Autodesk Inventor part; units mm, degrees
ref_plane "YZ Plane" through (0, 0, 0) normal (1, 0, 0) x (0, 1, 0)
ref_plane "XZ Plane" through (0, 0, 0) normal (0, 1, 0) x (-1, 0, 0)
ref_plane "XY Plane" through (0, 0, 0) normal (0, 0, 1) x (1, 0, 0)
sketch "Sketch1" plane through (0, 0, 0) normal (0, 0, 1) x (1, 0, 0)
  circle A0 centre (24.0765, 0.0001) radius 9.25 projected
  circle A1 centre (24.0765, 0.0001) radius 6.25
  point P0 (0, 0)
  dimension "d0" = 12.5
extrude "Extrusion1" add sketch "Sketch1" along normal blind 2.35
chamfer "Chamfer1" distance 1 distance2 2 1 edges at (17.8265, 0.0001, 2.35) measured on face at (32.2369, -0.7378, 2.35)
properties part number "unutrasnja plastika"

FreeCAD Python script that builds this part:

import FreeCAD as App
import Part
import Sketcher

V = App.Vector
Q = App.Units.Quantity


def edges_at(feature, points):
    """Names of the edges that pass closest to the given points."""
    edges = feature.Shape.Edges
    near = lambda p: min(range(len(edges)), key=lambda i: edges[i].distToShape(Part.Vertex(*p))[0])
    return sorted({f"Edge{near(p) + 1}" for p in points})

doc = App.newDocument("Part")
params = doc.addObject("Spreadsheet::Sheet", "Params")
for row, (alias, value) in enumerate([
    ("sketch1_diameter", "12.5 mm"),
    ("sketch1_diameter2", "18.5 mm"),
    ("pad1_length", "2.35 mm"),
    ("chamfer_size", "1 mm"),
    ("chamfer_size2", "2 mm"),
], start=1):
    params.set(f"A{row}", alias)
    params.set(f"B{row}", "=" + value)
    params.setAlias(f"B{row}", alias)

body = doc.addObject("PartDesign::Body", "Body")

sketch1 = doc.addObject("Sketcher::SketchObject", "Sketch")
body.addObject(sketch1)
sketch1.AttachmentSupport = (doc.XY_Plane, [""])
sketch1.MapMode = "FlatFace"
sketch1.addGeometry([
    Part.Circle(V(24, 0, 0), V(0, 0, 1), 9),
    Part.Circle(V(24, 0, 0), V(0, 0, 1), 6),
], False)
sketch1.addConstraint([
    Sketcher.Constraint("Coincident", 1, 3, 0, 3),
    Sketcher.Constraint("PointOnObject", 0, 3, -1),
    Sketcher.Constraint("Diameter", 1, Q("12.5 mm")),
    Sketcher.Constraint("Diameter", 0, Q("18.5 mm")),
    Sketcher.Constraint("DistanceX", -1, 1, 0, 3, Q("24.0765 mm")),
])
sketch1.setExpression("Constraints[2]", "Params.sketch1_diameter")
sketch1.setExpression("Constraints[3]", "Params.sketch1_diameter2")
pad1 = doc.addObject("PartDesign::Pad", "Pad")
body.addObject(pad1)
pad1.Profile = sketch1
pad1.setExpression("Length", "Params.pad1_length")
doc.recompute()

chamfer = doc.addObject("PartDesign::Chamfer", "Chamfer")
body.addObject(chamfer)
chamfer.Base = (pad1, edges_at(pad1, [(17.826, 0, 2.35)]))
chamfer.ChamferType = "Two distances"
chamfer.setExpression("Size", "Params.chamfer_size")
chamfer.setExpression("Size2", "Params.chamfer_size2")
chamfer.FlipDirection = True

doc.recompute()
